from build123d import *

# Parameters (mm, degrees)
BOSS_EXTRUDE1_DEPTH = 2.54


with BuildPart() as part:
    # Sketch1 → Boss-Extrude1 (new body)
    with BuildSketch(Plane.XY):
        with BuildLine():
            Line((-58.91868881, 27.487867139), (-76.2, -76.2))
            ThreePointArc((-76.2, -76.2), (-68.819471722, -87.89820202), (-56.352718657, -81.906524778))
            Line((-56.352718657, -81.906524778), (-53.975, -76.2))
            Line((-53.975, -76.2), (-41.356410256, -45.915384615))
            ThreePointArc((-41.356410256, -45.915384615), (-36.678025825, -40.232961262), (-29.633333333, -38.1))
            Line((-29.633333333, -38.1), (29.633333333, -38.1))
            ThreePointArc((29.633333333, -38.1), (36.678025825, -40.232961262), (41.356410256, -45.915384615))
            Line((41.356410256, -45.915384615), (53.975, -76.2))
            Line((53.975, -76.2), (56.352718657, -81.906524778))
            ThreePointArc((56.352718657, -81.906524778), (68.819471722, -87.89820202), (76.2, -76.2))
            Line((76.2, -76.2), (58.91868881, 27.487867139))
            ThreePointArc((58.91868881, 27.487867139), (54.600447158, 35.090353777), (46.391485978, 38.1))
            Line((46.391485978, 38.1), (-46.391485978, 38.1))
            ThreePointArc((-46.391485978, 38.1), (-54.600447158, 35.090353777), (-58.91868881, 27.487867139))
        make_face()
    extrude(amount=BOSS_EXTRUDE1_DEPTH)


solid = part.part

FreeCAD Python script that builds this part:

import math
import FreeCAD as App
import Part
import Sketcher

V = App.Vector
Q = App.Units.Quantity

doc = App.newDocument("Part")
body = doc.addObject("PartDesign::Body", "Body")

sketch1 = body.newObject("Sketcher::SketchObject", "Sketch")
sketch1.AttachmentSupport = (doc.getObject("XY_Plane"), [""])
sketch1.MapMode = "FlatFace"
sketch1.addGeometry([
    Part.LineSegment(V(-59, 27, 0), V(-76, -76, 0)),
    Part.ArcOfCircle(Part.Circle(V(-66, -78, 0), V(0, 0, 1), 10), math.radians(171), math.radians(337)),
    Part.LineSegment(V(-56, -82, 0), V(-54, -76, 0)),
    Part.LineSegment(V(-54, -76, 0), V(-41, -46, 0)),
    Part.ArcOfCircle(Part.Circle(V(-30, -51, 0), V(0, 0, 1), 13), math.radians(90), math.radians(157)),
    Part.LineSegment(V(-30, -38, 0), V(30, -38, 0)),
    Part.ArcOfCircle(Part.Circle(V(30, -51, 0), V(0, 0, 1), 13), math.radians(23), math.radians(90)),
    Part.LineSegment(V(41, -46, 0), V(54, -76, 0)),
    Part.LineSegment(V(54, -76, 0), V(56, -82, 0)),
    Part.ArcOfCircle(Part.Circle(V(66, -78, 0), V(0, 0, 1), 10), math.radians(-157), math.radians(9)),
    Part.LineSegment(V(76, -76, 0), V(59, 27, 0)),
    Part.ArcOfCircle(Part.Circle(V(46, 25, 0), V(0, 0, 1), 13), math.radians(9), math.radians(90)),
    Part.LineSegment(V(46, 38, 0), V(-46, 38, 0)),
    Part.ArcOfCircle(Part.Circle(V(-46, 25, 0), V(0, 0, 1), 13), math.radians(90), math.radians(171)),
], False)
sketch1.addConstraint([
    Sketcher.Constraint("Tangent", 0, 2, 1, 1),
    Sketcher.Constraint("Tangent", 1, 2, 2, 1),
    Sketcher.Constraint("Coincident", 2, 2, 3, 1),
    Sketcher.Constraint("Tangent", 3, 2, 4, 2),
    Sketcher.Constraint("Tangent", 4, 1, 5, 1),
    Sketcher.Constraint("Tangent", 5, 2, 6, 2),
    Sketcher.Constraint("Tangent", 6, 1, 7, 1),
    Sketcher.Constraint("Coincident", 7, 2, 8, 1),
    Sketcher.Constraint("Tangent", 8, 2, 9, 1),
    Sketcher.Constraint("Tangent", 9, 2, 10, 1),
    Sketcher.Constraint("Tangent", 10, 2, 11, 1),
    Sketcher.Constraint("Tangent", 11, 2, 12, 1),
    Sketcher.Constraint("Tangent", 12, 2, 13, 1),
    Sketcher.Constraint("Tangent", 13, 2, 0, 1),
    Sketcher.Constraint("Horizontal", 5),
    Sketcher.Constraint("Horizontal", 12),
    Sketcher.Constraint("Equal", 4, 6),
    Sketcher.Constraint("Equal", 1, 9),
    Sketcher.Constraint("Equal", 6, 11),
    Sketcher.Constraint("Equal", 11, 13),
    Sketcher.Constraint("Symmetric", 1, 3, 9, 3, -2),
    Sketcher.Constraint("Symmetric", 3, 2, 6, 1, -2),
    Sketcher.Constraint("Parallel", 2, 3),
    Sketcher.Constraint("Horizontal", 0, 2, 2, 2),
    Sketcher.Constraint("Horizontal", 2, 2, 7, 2),
    Sketcher.Constraint("Horizontal", 7, 2, 9, 2),
    Sketcher.Constraint("Radius", 4, Q("0.5 in")),
    Sketcher.Constraint("DistanceY", 4, 3, -1, 1, Q("2 in")),
    Sketcher.Constraint("DistanceY", -1, 1, 11, 3, Q("1 in")),
    Sketcher.Constraint("DistanceX", 0, 2, -1, 1, Q("3 in")),
    Sketcher.Constraint("DistanceY", 0, 2, -1, 1, Q("3 in")),
    Sketcher.Constraint("DistanceX", 2, 2, -1, 1, Q("2.125 in")),
    Sketcher.Constraint("Radius", 1, 10.394126),
    Sketcher.Constraint("DistanceX", 12, 2, 12, 1, 92.782972),
])
pad1 = body.newObject("PartDesign::Pad", "Pad")
pad1.Profile = sketch1
pad1.Length = Q("0.1 in")

doc.recompute()
